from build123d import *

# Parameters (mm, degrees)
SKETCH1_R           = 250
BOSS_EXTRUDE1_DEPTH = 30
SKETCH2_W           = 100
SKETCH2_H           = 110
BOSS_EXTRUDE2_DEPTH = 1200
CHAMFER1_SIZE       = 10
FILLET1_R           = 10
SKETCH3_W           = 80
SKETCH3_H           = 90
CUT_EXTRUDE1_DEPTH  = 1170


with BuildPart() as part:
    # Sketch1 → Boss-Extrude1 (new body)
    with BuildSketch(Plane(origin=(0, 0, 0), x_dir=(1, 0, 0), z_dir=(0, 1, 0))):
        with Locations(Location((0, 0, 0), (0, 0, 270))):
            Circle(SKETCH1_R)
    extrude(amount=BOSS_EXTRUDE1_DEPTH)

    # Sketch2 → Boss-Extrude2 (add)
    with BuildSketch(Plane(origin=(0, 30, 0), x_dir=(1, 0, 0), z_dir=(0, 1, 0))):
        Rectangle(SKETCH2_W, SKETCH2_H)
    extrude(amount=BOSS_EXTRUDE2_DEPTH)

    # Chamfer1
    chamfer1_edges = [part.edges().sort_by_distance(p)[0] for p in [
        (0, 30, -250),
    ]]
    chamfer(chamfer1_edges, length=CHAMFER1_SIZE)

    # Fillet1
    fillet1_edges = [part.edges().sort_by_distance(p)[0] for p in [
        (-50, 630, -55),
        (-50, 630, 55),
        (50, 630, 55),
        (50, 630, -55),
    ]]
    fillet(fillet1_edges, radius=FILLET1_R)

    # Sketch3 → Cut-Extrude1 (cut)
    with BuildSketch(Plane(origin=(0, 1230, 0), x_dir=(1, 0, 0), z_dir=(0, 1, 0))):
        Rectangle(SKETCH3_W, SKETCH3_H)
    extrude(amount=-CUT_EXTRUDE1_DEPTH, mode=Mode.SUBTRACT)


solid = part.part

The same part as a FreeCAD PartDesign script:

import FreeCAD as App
import Part
import Sketcher
from FreeCAD import Vector
Q = App.Units.Quantity


def edges_at(feature, points):
    """Names of the edges that pass closest to the given points."""
    edges = feature.Shape.Edges
    near = lambda p: min(range(len(edges)), key=lambda i: edges[i].distToShape(Part.Vertex(*p))[0])
    return sorted({f"Edge{near(p) + 1}" for p in points})

doc = App.newDocument("Part")
body = doc.addObject("PartDesign::Body", "Body")

sketch1 = body.newObject("Sketcher::SketchObject", "Sketch")
sketch1.AttachmentSupport = (doc.getObject("XZ_Plane"), [""])
sketch1.MapMode = "FlatFace"
sketch1.addGeometry(Part.Circle(Vector(0, 0, 0), Vector(0, 0, 1), 250), False)
sketch1.addConstraint(Sketcher.Constraint("Coincident", 0, 3, -1, 1))
sketch1.addConstraint(Sketcher.Constraint("Diameter", 0, Q("500 mm")))
pad1 = body.newObject("PartDesign::Pad", "Pad")
pad1.Profile = sketch1
pad1.Length = 30
pad1.Reversed = True

sketch2 = body.newObject("Sketcher::SketchObject", "Sketch001")
sketch2.AttachmentSupport = (doc.getObject("XZ_Plane"), [""])
sketch2.MapMode = "FlatFace"
sketch2.AttachmentOffset = App.Placement(Vector(0, 0, -30), App.Rotation())
sketch2.addGeometry(Part.LineSegment(Vector(-50, -55, 0), Vector(-50, 55, 0)), False)
sketch2.addGeometry(Part.LineSegment(Vector(-50, 55, 0), Vector(50, 55, 0)), False)
sketch2.addGeometry(Part.LineSegment(Vector(50, 55, 0), Vector(50, -55, 0)), False)
sketch2.addGeometry(Part.LineSegment(Vector(50, -55, 0), Vector(-50, -55, 0)), False)
sketch2.addConstraint(Sketcher.Constraint("Coincident", 0, 2, 1, 1))
sketch2.addConstraint(Sketcher.Constraint("Coincident", 1, 2, 2, 1))
sketch2.addConstraint(Sketcher.Constraint("Coincident", 2, 2, 3, 1))
sketch2.addConstraint(Sketcher.Constraint("Coincident", 3, 2, 0, 1))
sketch2.addConstraint(Sketcher.Constraint("Vertical", 0))
sketch2.addConstraint(Sketcher.Constraint("Horizontal", 1))
sketch2.addConstraint(Sketcher.Constraint("Vertical", 2))
sketch2.addConstraint(Sketcher.Constraint("Horizontal", 3))
sketch2.addConstraint(Sketcher.Constraint("Symmetric", 0, 2, 2, 2, -1, 1))
sketch2.addConstraint(Sketcher.Constraint("DistanceX", 1, 1, 1, 2, Q("100 mm")))
sketch2.addConstraint(Sketcher.Constraint("DistanceY", 0, 1, 0, 2, Q("110 mm")))
pad2 = body.newObject("PartDesign::Pad", "Pad001")
pad2.Profile = sketch2
pad2.Length = 1200
pad2.Reversed = True
doc.recompute()

chamfer = body.newObject("PartDesign::Chamfer", "Chamfer")
chamfer.Base = (pad2, edges_at(pad2, [(0, 30, -250)]))
chamfer.Size = 10
doc.recompute()

fillet = body.newObject("PartDesign::Fillet", "Fillet")
fillet.Base = (chamfer, edges_at(chamfer, [
    (-50, 630, -55),
    (-50, 630, 55),
    (50, 630, 55),
    (50, 630, -55),
]))
fillet.Radius = 10

sketch3 = body.newObject("Sketcher::SketchObject", "Sketch002")
sketch3.AttachmentSupport = (doc.getObject("XZ_Plane"), [""])
sketch3.MapMode = "FlatFace"
sketch3.AttachmentOffset = App.Placement(Vector(0, 0, -1230), App.Rotation())
sketch3.addGeometry(Part.LineSegment(Vector(-40, -45, 0), Vector(-40, 45, 0)), False)
sketch3.addGeometry(Part.LineSegment(Vector(-40, 45, 0), Vector(40, 45, 0)), False)
sketch3.addGeometry(Part.LineSegment(Vector(40, 45, 0), Vector(40, -45, 0)), False)
sketch3.addGeometry(Part.LineSegment(Vector(40, -45, 0), Vector(-40, -45, 0)), False)
sketch3.addConstraint(Sketcher.Constraint("Coincident", 0, 2, 1, 1))
sketch3.addConstraint(Sketcher.Constraint("Coincident", 1, 2, 2, 1))
sketch3.addConstraint(Sketcher.Constraint("Coincident", 2, 2, 3, 1))
sketch3.addConstraint(Sketcher.Constraint("Coincident", 3, 2, 0, 1))
sketch3.addConstraint(Sketcher.Constraint("Vertical", 0))
sketch3.addConstraint(Sketcher.Constraint("Horizontal", 1))
sketch3.addConstraint(Sketcher.Constraint("Vertical", 2))
sketch3.addConstraint(Sketcher.Constraint("Horizontal", 3))
sketch3.addConstraint(Sketcher.Constraint("Symmetric", 0, 2, 2, 2, -1, 1))
sketch3.addConstraint(Sketcher.Constraint("DistanceX", 1, 1, 1, 2, Q("80 mm")))
sketch3.addConstraint(Sketcher.Constraint("DistanceY", 0, 1, 0, 2, Q("90 mm")))
pocket1 = body.newObject("PartDesign::Pocket", "Pocket")
pocket1.Profile = sketch3
pocket1.Length = 1170
pocket1.Reversed = True

doc.recompute()
